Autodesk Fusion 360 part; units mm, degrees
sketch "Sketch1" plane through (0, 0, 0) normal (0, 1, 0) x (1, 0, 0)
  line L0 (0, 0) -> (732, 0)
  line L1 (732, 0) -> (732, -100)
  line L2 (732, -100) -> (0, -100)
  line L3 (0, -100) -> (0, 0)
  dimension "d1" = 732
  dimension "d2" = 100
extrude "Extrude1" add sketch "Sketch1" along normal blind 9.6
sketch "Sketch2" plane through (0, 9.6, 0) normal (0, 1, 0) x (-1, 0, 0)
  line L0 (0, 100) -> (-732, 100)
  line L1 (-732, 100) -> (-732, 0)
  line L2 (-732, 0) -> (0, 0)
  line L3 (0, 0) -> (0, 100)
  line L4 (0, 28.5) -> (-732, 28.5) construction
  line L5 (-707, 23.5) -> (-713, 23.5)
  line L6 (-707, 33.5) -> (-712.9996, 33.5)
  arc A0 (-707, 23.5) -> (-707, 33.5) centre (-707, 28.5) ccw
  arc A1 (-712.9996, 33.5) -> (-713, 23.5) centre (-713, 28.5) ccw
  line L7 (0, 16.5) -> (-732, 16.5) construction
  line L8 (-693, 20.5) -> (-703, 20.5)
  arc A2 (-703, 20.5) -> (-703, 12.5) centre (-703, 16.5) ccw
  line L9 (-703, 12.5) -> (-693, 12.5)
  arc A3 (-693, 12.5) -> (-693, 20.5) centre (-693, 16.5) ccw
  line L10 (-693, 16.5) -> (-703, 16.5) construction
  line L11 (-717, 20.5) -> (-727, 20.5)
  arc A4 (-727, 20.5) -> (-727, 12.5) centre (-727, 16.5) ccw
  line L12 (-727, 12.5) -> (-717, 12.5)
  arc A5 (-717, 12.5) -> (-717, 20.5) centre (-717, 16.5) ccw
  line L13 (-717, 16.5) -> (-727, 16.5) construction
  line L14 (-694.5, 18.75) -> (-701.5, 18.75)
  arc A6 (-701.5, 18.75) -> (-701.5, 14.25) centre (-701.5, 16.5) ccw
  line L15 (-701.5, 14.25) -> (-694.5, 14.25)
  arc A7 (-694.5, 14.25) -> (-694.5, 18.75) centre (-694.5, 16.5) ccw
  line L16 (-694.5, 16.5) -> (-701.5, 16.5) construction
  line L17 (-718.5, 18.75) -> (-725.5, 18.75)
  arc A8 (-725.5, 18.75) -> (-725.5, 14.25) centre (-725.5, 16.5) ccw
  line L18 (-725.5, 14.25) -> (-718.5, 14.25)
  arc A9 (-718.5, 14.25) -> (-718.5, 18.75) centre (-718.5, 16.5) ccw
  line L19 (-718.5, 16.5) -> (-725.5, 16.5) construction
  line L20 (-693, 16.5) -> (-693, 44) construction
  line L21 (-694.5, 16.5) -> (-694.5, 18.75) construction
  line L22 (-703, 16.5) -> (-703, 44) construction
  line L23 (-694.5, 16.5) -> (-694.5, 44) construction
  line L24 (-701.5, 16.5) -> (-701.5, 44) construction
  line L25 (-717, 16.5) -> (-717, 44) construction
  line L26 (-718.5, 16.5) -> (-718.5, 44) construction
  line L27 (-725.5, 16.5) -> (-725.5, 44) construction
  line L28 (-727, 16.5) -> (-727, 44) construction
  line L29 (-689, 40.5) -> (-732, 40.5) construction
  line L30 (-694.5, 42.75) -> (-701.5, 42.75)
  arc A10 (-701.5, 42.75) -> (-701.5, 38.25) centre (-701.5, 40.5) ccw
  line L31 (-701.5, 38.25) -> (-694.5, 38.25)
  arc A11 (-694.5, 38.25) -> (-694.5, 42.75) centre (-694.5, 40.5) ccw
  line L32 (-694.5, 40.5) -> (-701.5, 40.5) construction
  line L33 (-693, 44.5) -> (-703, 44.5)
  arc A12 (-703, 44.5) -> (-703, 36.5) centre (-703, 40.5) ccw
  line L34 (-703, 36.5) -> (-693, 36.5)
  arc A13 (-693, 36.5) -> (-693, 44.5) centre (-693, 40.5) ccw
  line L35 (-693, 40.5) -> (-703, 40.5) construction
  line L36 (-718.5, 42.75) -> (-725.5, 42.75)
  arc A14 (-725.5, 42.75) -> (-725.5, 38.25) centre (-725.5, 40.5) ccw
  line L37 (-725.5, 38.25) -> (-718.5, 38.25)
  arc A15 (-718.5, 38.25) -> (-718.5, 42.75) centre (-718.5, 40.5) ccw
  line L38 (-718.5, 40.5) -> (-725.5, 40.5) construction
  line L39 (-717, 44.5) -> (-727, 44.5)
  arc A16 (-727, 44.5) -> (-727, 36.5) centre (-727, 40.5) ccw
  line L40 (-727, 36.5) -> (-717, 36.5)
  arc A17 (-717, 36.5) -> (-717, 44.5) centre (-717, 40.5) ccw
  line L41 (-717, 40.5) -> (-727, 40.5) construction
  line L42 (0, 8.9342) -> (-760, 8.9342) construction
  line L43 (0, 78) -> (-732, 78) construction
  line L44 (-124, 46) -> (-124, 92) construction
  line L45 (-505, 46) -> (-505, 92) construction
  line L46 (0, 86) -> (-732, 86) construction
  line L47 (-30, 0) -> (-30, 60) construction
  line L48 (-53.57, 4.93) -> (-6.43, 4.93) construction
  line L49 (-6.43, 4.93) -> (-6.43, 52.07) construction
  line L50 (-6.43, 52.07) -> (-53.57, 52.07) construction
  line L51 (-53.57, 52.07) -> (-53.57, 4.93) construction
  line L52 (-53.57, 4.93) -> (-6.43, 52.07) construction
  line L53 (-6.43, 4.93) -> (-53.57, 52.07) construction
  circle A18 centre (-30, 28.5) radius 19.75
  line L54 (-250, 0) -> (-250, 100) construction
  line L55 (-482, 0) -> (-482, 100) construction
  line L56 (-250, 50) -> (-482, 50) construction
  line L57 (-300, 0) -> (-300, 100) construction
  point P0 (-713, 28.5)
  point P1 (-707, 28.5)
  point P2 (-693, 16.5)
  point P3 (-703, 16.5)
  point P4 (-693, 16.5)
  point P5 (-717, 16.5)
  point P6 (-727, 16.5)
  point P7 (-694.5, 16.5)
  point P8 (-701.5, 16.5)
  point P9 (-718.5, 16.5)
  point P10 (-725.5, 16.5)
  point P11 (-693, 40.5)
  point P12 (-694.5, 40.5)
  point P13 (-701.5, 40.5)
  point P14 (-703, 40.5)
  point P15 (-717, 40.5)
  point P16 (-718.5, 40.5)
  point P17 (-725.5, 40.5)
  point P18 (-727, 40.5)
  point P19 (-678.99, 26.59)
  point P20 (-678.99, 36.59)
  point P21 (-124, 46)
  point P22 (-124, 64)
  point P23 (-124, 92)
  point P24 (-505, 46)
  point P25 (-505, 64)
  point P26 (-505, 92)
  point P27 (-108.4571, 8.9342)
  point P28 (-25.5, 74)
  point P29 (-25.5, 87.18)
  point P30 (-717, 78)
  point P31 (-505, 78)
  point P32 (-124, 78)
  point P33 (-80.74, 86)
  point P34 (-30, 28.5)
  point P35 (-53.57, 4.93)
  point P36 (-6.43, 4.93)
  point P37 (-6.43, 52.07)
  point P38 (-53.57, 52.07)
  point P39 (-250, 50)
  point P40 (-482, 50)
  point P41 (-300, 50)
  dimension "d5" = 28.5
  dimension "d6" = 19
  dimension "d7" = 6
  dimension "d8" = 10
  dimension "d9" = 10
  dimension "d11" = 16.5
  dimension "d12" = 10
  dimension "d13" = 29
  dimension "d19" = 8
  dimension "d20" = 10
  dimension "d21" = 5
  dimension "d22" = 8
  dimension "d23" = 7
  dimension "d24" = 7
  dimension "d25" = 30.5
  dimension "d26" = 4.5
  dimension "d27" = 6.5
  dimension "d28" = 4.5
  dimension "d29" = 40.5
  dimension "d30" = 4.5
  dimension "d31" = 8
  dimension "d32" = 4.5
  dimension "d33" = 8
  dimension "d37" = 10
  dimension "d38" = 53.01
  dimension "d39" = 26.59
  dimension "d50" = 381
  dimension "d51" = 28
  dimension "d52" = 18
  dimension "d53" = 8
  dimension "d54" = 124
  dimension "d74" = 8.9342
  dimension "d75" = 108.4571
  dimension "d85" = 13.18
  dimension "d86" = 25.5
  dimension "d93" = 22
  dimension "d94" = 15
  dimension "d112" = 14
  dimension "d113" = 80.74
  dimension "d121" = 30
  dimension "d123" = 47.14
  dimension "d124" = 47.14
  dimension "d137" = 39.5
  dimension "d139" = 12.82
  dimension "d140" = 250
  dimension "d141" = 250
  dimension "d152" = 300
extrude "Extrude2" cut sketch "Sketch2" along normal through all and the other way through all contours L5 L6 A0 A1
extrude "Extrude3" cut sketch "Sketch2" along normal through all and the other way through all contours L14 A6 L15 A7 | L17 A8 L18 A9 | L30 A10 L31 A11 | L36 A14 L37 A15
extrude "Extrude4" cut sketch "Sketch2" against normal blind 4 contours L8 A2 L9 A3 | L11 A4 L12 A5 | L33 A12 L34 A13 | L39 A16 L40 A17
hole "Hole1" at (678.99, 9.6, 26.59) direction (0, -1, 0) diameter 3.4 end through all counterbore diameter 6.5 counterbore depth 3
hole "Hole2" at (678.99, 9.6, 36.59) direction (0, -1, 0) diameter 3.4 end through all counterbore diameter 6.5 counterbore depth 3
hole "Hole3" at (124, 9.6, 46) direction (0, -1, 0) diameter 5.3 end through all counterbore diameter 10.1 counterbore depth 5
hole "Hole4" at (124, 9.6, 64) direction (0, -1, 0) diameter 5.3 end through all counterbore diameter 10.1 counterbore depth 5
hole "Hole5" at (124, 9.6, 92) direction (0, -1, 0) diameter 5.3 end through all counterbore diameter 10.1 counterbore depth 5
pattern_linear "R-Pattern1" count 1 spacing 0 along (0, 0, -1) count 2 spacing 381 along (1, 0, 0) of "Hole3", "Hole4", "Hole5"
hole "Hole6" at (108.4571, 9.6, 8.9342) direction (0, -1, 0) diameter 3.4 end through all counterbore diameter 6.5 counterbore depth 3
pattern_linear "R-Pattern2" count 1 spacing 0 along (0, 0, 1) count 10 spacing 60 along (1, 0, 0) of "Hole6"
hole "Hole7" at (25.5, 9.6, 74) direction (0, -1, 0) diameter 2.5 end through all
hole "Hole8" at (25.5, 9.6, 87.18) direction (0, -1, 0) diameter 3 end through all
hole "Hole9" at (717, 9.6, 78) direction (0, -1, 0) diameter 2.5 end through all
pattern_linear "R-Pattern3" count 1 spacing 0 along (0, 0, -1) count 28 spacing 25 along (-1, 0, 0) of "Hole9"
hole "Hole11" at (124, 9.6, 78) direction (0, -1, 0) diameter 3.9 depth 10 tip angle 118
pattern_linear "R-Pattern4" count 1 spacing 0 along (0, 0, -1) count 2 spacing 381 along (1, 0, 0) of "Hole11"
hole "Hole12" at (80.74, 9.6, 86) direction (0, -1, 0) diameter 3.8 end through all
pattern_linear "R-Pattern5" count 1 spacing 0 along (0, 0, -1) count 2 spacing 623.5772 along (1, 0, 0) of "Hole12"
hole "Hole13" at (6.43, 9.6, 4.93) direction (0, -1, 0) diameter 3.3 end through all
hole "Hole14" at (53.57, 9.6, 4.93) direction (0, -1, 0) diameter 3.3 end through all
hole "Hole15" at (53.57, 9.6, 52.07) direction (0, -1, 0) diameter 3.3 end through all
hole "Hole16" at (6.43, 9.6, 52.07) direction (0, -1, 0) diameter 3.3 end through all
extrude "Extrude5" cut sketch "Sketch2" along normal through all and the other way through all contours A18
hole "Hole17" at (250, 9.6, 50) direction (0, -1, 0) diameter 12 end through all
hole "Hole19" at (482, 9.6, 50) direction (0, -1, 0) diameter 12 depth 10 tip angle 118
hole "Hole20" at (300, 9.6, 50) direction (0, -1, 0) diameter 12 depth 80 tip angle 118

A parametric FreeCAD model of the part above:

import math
import FreeCAD as App
import Part
import Sketcher
from FreeCAD import Vector
Q = App.Units.Quantity


def add_polygon(sketch, points):
    """Adds a closed chain of lines whose ends are joined by coincident constraints."""
    first, n = sketch.GeometryCount, len(points)
    for a, b in zip(points, points[1:] + points[:1]):
        sketch.addGeometry(Part.LineSegment(App.Vector(*a, 0), App.Vector(*b, 0)), False)
    for i in range(n):
        sketch.addConstraint(Sketcher.Constraint("Coincident", first + i, 2, first + (i + 1) % n, 1))

doc = App.newDocument("Part")
body = doc.addObject("PartDesign::Body", "Body")

sketch1 = doc.addObject("Sketcher::SketchObject", "Sketch")
body.addObject(sketch1)
sketch1.AttachmentSupport = (doc.XZ_Plane, [""])
sketch1.MapMode = "FlatFace"
add_polygon(sketch1, [(732, 0), (0, 0), (0, 100), (732, 100)])
sketch1.addConstraint([
    Sketcher.Constraint("Horizontal", 0),
    Sketcher.Constraint("Vertical", 1),
    Sketcher.Constraint("Horizontal", 2),
    Sketcher.Constraint("Vertical", 3),
    Sketcher.Constraint("Coincident", 0, 2, -1, 1),
    Sketcher.Constraint("DistanceX", 0, 2, 0, 1, Q("732 mm")),
    Sketcher.Constraint("DistanceY", 1, 1, 1, 2, Q("100 mm")),
])
pad1 = doc.addObject("PartDesign::Pad", "Pad")
body.addObject(pad1)
pad1.Profile = sketch1
pad1.Length = 9.6
pad1.Reversed = True

sketch2 = doc.addObject("Sketcher::SketchObject", "Sketch001")
body.addObject(sketch2)
sketch2.AttachmentSupport = (doc.XZ_Plane, [""])
sketch2.MapMode = "FlatFace"
sketch2.AttachmentOffset = App.Placement(Vector(0, 0, -9.6), App.Rotation())
sketch2.addGeometry([
    Part.LineSegment(Vector(713, 24, 0), Vector(707, 24, 0)),
    Part.ArcOfCircle(Part.Circle(Vector(707, 28, 0), Vector(0, 0, 1), 5), math.radians(90), math.radians(270)),
    Part.LineSegment(Vector(707, 34, 0), Vector(713, 34, 0)),
    Part.ArcOfCircle(Part.Circle(Vector(713, 28, 0), Vector(0, 0, 1), 5), math.radians(-90), math.radians(90)),
], False)
sketch2.addConstraint([
    Sketcher.Constraint("Tangent", 0, 2, 1, 2),
    Sketcher.Constraint("Tangent", 1, 1, 2, 1),
    Sketcher.Constraint("Tangent", 2, 2, 3, 2),
    Sketcher.Constraint("Tangent", 3, 1, 0, 1),
    Sketcher.Constraint("Horizontal", 0),
    Sketcher.Constraint("Horizontal", 2),
    Sketcher.Constraint("Radius", 1, Q("5 mm")),
    Sketcher.Constraint("DistanceX", 0, 2, 0, 1, Q("6 mm")),
    Sketcher.Constraint("DistanceY", -1, 1, 1, 3, Q("28.5 mm")),
    Sketcher.Constraint("DistanceX", -1, 1, 1, 3, Q("707 mm")),
])
pocket1 = doc.addObject("PartDesign::Pocket", "Pocket")
body.addObject(pocket1)
pocket1.Profile = sketch2
pocket1.Type = "ThroughAll"
pocket1.Midplane = True

sketch3 = doc.addObject("Sketcher::SketchObject", "Sketch002")
body.addObject(sketch3)
sketch3.AttachmentSupport = (doc.XZ_Plane, [""])
sketch3.MapMode = "FlatFace"
sketch3.AttachmentOffset = App.Placement(Vector(0, 0, -9.6), App.Rotation())
sketch3.addGeometry([
    Part.ArcOfCircle(Part.Circle(Vector(694.5, 16.5, 0), Vector(0, 0, 1), 2.2), math.radians(90), math.radians(270)),
    Part.LineSegment(Vector(694.5, 18.8, 0), Vector(701.5, 18.8, 0)),
    Part.ArcOfCircle(Part.Circle(Vector(701.5, 16.5, 0), Vector(0, 0, 1), 2.2), math.radians(-90), math.radians(90)),
    Part.LineSegment(Vector(701.5, 14.2, 0), Vector(694.5, 14.2, 0)),
    Part.ArcOfCircle(Part.Circle(Vector(718.5, 16.5, 0), Vector(0, 0, 1), 2.2), math.radians(90), math.radians(270)),
    Part.LineSegment(Vector(718.5, 18.8, 0), Vector(725.5, 18.8, 0)),
    Part.ArcOfCircle(Part.Circle(Vector(725.5, 16.5, 0), Vector(0, 0, 1), 2.2), math.radians(-90), math.radians(90)),
    Part.LineSegment(Vector(725.5, 14.2, 0), Vector(718.5, 14.2, 0)),
    Part.ArcOfCircle(Part.Circle(Vector(694.5, 40.5, 0), Vector(0, 0, 1), 2.2), math.radians(90), math.radians(270)),
    Part.LineSegment(Vector(694.5, 42.8, 0), Vector(701.5, 42.8, 0)),
    Part.ArcOfCircle(Part.Circle(Vector(701.5, 40.5, 0), Vector(0, 0, 1), 2.2), math.radians(-90), math.radians(90)),
    Part.LineSegment(Vector(701.5, 38.2, 0), Vector(694.5, 38.2, 0)),
    Part.ArcOfCircle(Part.Circle(Vector(718.5, 40.5, 0), Vector(0, 0, 1), 2.2), math.radians(90), math.radians(270)),
    Part.LineSegment(Vector(718.5, 42.8, 0), Vector(725.5, 42.8, 0)),
    Part.ArcOfCircle(Part.Circle(Vector(725.5, 40.5, 0), Vector(0, 0, 1), 2.2), math.radians(-90), math.radians(90)),
    Part.LineSegment(Vector(725.5, 38.2, 0), Vector(718.5, 38.2, 0)),
], False)
sketch3.addConstraint([
    Sketcher.Constraint("Tangent", 0, 1, 1, 1),
    Sketcher.Constraint("Tangent", 1, 2, 2, 2),
    Sketcher.Constraint("Tangent", 2, 1, 3, 1),
    Sketcher.Constraint("Tangent", 3, 2, 0, 2),
    Sketcher.Constraint("Tangent", 4, 1, 5, 1),
    Sketcher.Constraint("Tangent", 5, 2, 6, 2),
    Sketcher.Constraint("Tangent", 6, 1, 7, 1),
    Sketcher.Constraint("Tangent", 7, 2, 4, 2),
    Sketcher.Constraint("Tangent", 8, 1, 9, 1),
    Sketcher.Constraint("Tangent", 9, 2, 10, 2),
    Sketcher.Constraint("Tangent", 10, 1, 11, 1),
    Sketcher.Constraint("Tangent", 11, 2, 8, 2),
    Sketcher.Constraint("Tangent", 12, 1, 13, 1),
    Sketcher.Constraint("Tangent", 13, 2, 14, 2),
    Sketcher.Constraint("Tangent", 14, 1, 15, 1),
    Sketcher.Constraint("Tangent", 15, 2, 12, 2),
    Sketcher.Constraint("Horizontal", 1),
    Sketcher.Constraint("Horizontal", 3),
    Sketcher.Constraint("Horizontal", 5),
    Sketcher.Constraint("Horizontal", 7),
    Sketcher.Constraint("Horizontal", 9),
    Sketcher.Constraint("Horizontal", 11),
    Sketcher.Constraint("Horizontal", 13),
    Sketcher.Constraint("Horizontal", 15),
    Sketcher.Constraint("Equal", 2, 4),
    Sketcher.Constraint("Equal", 6, 8),
    Sketcher.Constraint("Equal", 10, 12),
    Sketcher.Constraint("Horizontal", 2, 3, 4, 3),
    Sketcher.Constraint("Horizontal", 10, 3, 12, 3),
    Sketcher.Constraint("Vertical", 0, 3, 8, 3),
    Sketcher.Constraint("Vertical", 2, 3, 10, 3),
    Sketcher.Constraint("Vertical", 4, 3, 12, 3),
    Sketcher.Constraint("Vertical", 6, 3, 14, 3),
    Sketcher.Constraint("Equal", 3, 5),
    Sketcher.Constraint("DistanceX", 1, 1, 1, 2, Q("7 mm")),
    Sketcher.Constraint("Radius", 0, Q("2.25 mm")),
    Sketcher.Constraint("DistanceY", -1, 1, 0, 3, Q("16.5 mm")),
    Sketcher.Constraint("DistanceY", -1, 1, 8, 3, Q("40.5 mm")),
    Sketcher.Constraint("DistanceX", 2, 3, 4, 3, Q("17 mm")),
    Sketcher.Constraint("DistanceX", -1, 1, 0, 3, Q("694.5 mm")),
])
pocket2 = doc.addObject("PartDesign::Pocket", "Pocket001")
body.addObject(pocket2)
pocket2.Profile = sketch3
pocket2.Type = "ThroughAll"
pocket2.Midplane = True

sketch4 = doc.addObject("Sketcher::SketchObject", "Sketch003")
body.addObject(sketch4)
sketch4.AttachmentSupport = (doc.XZ_Plane, [""])
sketch4.MapMode = "FlatFace"
sketch4.AttachmentOffset = App.Placement(Vector(0, 0, -9.6), App.Rotation())
sketch4.addGeometry([
    Part.ArcOfCircle(Part.Circle(Vector(693, 16.5, 0), Vector(0, 0, 1), 4), math.radians(90), math.radians(270)),
    Part.LineSegment(Vector(693, 20.5, 0), Vector(703, 20.5, 0)),
    Part.ArcOfCircle(Part.Circle(Vector(703, 16.5, 0), Vector(0, 0, 1), 4), math.radians(-90), math.radians(90)),
    Part.LineSegment(Vector(703, 12.5, 0), Vector(693, 12.5, 0)),
    Part.LineSegment(Vector(701.5, 18.8, 0), Vector(694.5, 18.8, 0)),
    Part.ArcOfCircle(Part.Circle(Vector(694.5, 16.5, 0), Vector(0, 0, 1), 2.2), math.radians(90), math.radians(270)),
    Part.LineSegment(Vector(694.5, 14.2, 0), Vector(701.5, 14.2, 0)),
    Part.ArcOfCircle(Part.Circle(Vector(701.5, 16.5, 0), Vector(0, 0, 1), 2.2), math.radians(-90), math.radians(90)),
    Part.ArcOfCircle(Part.Circle(Vector(717, 16.5, 0), Vector(0, 0, 1), 4), math.radians(90), math.radians(270)),
    Part.LineSegment(Vector(717, 20.5, 0), Vector(727, 20.5, 0)),
    Part.ArcOfCircle(Part.Circle(Vector(727, 16.5, 0), Vector(0, 0, 1), 4), math.radians(-90), math.radians(90)),
    Part.LineSegment(Vector(727, 12.5, 0), Vector(717, 12.5, 0)),
    Part.LineSegment(Vector(725.5, 18.8, 0), Vector(718.5, 18.8, 0)),
    Part.ArcOfCircle(Part.Circle(Vector(718.5, 16.5, 0), Vector(0, 0, 1), 2.2), math.radians(90), math.radians(270)),
    Part.LineSegment(Vector(718.5, 14.2, 0), Vector(725.5, 14.2, 0)),
    Part.ArcOfCircle(Part.Circle(Vector(725.5, 16.5, 0), Vector(0, 0, 1), 2.2), math.radians(-90), math.radians(90)),
    Part.ArcOfCircle(Part.Circle(Vector(693, 40.5, 0), Vector(0, 0, 1), 4), math.radians(90), math.radians(270)),
    Part.LineSegment(Vector(693, 44.5, 0), Vector(703, 44.5, 0)),
    Part.ArcOfCircle(Part.Circle(Vector(703, 40.5, 0), Vector(0, 0, 1), 4), math.radians(-90), math.radians(90)),
    Part.LineSegment(Vector(703, 36.5, 0), Vector(693, 36.5, 0)),
    Part.LineSegment(Vector(701.5, 42.8, 0), Vector(694.5, 42.8, 0)),
    Part.ArcOfCircle(Part.Circle(Vector(694.5, 40.5, 0), Vector(0, 0, 1), 2.2), math.radians(90), math.radians(270)),
    Part.LineSegment(Vector(694.5, 38.2, 0), Vector(701.5, 38.2, 0)),
    Part.ArcOfCircle(Part.Circle(Vector(701.5, 40.5, 0), Vector(0, 0, 1), 2.2), math.radians(-90), math.radians(90)),
    Part.ArcOfCircle(Part.Circle(Vector(717, 40.5, 0), Vector(0, 0, 1), 4), math.radians(90), math.radians(270)),
    Part.LineSegment(Vector(717, 44.5, 0), Vector(727, 44.5, 0)),
    Part.ArcOfCircle(Part.Circle(Vector(727, 40.5, 0), Vector(0, 0, 1), 4), math.radians(-90), math.radians(90)),
    Part.LineSegment(Vector(727, 36.5, 0), Vector(717, 36.5, 0)),
    Part.LineSegment(Vector(725.5, 42.8, 0), Vector(718.5, 42.8, 0)),
    Part.ArcOfCircle(Part.Circle(Vector(718.5, 40.5, 0), Vector(0, 0, 1), 2.2), math.radians(90), math.radians(270)),
    Part.LineSegment(Vector(718.5, 38.2, 0), Vector(725.5, 38.2, 0)),
    Part.ArcOfCircle(Part.Circle(Vector(725.5, 40.5, 0), Vector(0, 0, 1), 2.2), math.radians(-90), math.radians(90)),
], False)
sketch4.addConstraint([
    Sketcher.Constraint("Tangent", 0, 1, 1, 1),
    Sketcher.Constraint("Tangent", 1, 2, 2, 2),
    Sketcher.Constraint("Tangent", 2, 1, 3, 1),
    Sketcher.Constraint("Tangent", 3, 2, 0, 2),
    Sketcher.Constraint("Tangent", 4, 2, 5, 1),
    Sketcher.Constraint("Tangent", 5, 2, 6, 1),
    Sketcher.Constraint("Tangent", 6, 2, 7, 1),
    Sketcher.Constraint("Tangent", 7, 2, 4, 1),
    Sketcher.Constraint("Tangent", 8, 1, 9, 1),
    Sketcher.Constraint("Tangent", 9, 2, 10, 2),
    Sketcher.Constraint("Tangent", 10, 1, 11, 1),
    Sketcher.Constraint("Tangent", 11, 2, 8, 2),
    Sketcher.Constraint("Tangent", 12, 2, 13, 1),
    Sketcher.Constraint("Tangent", 13, 2, 14, 1),
    Sketcher.Constraint("Tangent", 14, 2, 15, 1),
    Sketcher.Constraint("Tangent", 15, 2, 12, 1),
    Sketcher.Constraint("Tangent", 16, 1, 17, 1),
    Sketcher.Constraint("Tangent", 17, 2, 18, 2),
    Sketcher.Constraint("Tangent", 18, 1, 19, 1),
    Sketcher.Constraint("Tangent", 19, 2, 16, 2),
    Sketcher.Constraint("Tangent", 20, 2, 21, 1),
    Sketcher.Constraint("Tangent", 21, 2, 22, 1),
    Sketcher.Constraint("Tangent", 22, 2, 23, 1),
    Sketcher.Constraint("Tangent", 23, 2, 20, 1),
    Sketcher.Constraint("Tangent", 24, 1, 25, 1),
    Sketcher.Constraint("Tangent", 25, 2, 26, 2),
    Sketcher.Constraint("Tangent", 26, 1, 27, 1),
    Sketcher.Constraint("Tangent", 27, 2, 24, 2),
    Sketcher.Constraint("Tangent", 28, 2, 29, 1),
    Sketcher.Constraint("Tangent", 29, 2, 30, 1),
    Sketcher.Constraint("Tangent", 30, 2, 31, 1),
    Sketcher.Constraint("Tangent", 31, 2, 28, 1),
    Sketcher.Constraint("Horizontal", 1),
    Sketcher.Constraint("Horizontal", 3),
    Sketcher.Constraint("Horizontal", 4),
    Sketcher.Constraint("Horizontal", 6),
    Sketcher.Constraint("Horizontal", 9),
    Sketcher.Constraint("Horizontal", 11),
    Sketcher.Constraint("Horizontal", 12),
    Sketcher.Constraint("Horizontal", 14),
    Sketcher.Constraint("Horizontal", 17),
    Sketcher.Constraint("Horizontal", 19),
    Sketcher.Constraint("Horizontal", 20),
    Sketcher.Constraint("Horizontal", 22),
    Sketcher.Constraint("Horizontal", 25),
    Sketcher.Constraint("Horizontal", 27),
    Sketcher.Constraint("Horizontal", 28),
    Sketcher.Constraint("Horizontal", 30),
    Sketcher.Constraint("Equal", 2, 8),
    Sketcher.Constraint("Equal", 7, 13),
    Sketcher.Constraint("Equal", 10, 16),
    Sketcher.Constraint("Equal", 15, 21),
    Sketcher.Constraint("Equal", 18, 24),
    Sketcher.Constraint("Equal", 23, 29),
    Sketcher.Constraint("Horizontal", 2, 3, 5, 3),
    Sketcher.Constraint("Horizontal", 7, 3, 8, 3),
    Sketcher.Constraint("Horizontal", 10, 3, 13, 3),
    Sketcher.Constraint("Horizontal", 18, 3, 21, 3),
    Sketcher.Constraint("Horizontal", 23, 3, 24, 3),
    Sketcher.Constraint("Horizontal", 26, 3, 29, 3),
    Sketcher.Constraint("Vertical", 0, 3, 16, 3),
    Sketcher.Constraint("Vertical", 2, 3, 18, 3),
    Sketcher.Constraint("Vertical", 5, 3, 21, 3),
    Sketcher.Constraint("Vertical", 7, 3, 23, 3),
    Sketcher.Constraint("Vertical", 8, 3, 24, 3),
    Sketcher.Constraint("Vertical", 10, 3, 26, 3),
    Sketcher.Constraint("Vertical", 13, 3, 29, 3),
    Sketcher.Constraint("Vertical", 15, 3, 31, 3),
    Sketcher.Constraint("Equal", 3, 9),
    Sketcher.Constraint("Equal", 6, 12),
    Sketcher.Constraint("Radius", 0, Q("4 mm")),
    Sketcher.Constraint("DistanceX", 1, 1, 1, 2, Q("10 mm")),
    Sketcher.Constraint("DistanceX", 4, 2, 4, 1, Q("7 mm")),
    Sketcher.Constraint("Radius", 5, Q("2.25 mm")),
    Sketcher.Constraint("DistanceX", 2, 3, 8, 3, Q("14 mm")),
    Sketcher.Constraint("DistanceY", -1, 1, 0, 3, Q("16.5 mm")),
    Sketcher.Constraint("DistanceY", -1, 1, 16, 3, Q("40.5 mm")),
    Sketcher.Constraint("DistanceX", 7, 3, 10, 3, Q("25.5 mm")),
    Sketcher.Constraint("DistanceX", -1, 1, 0, 3, Q("693 mm")),
    Sketcher.Constraint("DistanceX", 7, 3, 13, 3, Q("17 mm")),
])
pocket3 = doc.addObject("PartDesign::Pocket", "Pocket002")
body.addObject(pocket3)
pocket3.Profile = sketch4
pocket3.Length = 4
pocket3.Reversed = True

sketch5 = doc.addObject("Sketcher::SketchObject", "Sketch004")
body.addObject(sketch5)
sketch5.AttachmentSupport = (doc.XZ_Plane, [""])
sketch5.MapMode = "FlatFace"
sketch5.AttachmentOffset = App.Placement(Vector(0, 0, -9.6), App.Rotation())
sketch5.addGeometry(Part.Circle(Vector(679, 26.6, 0), Vector(0, 0, 1), 1.7), False)
sketch5.addConstraint([
    Sketcher.Constraint("Diameter", 0, Q("3.4 mm")),
    Sketcher.Constraint("DistanceX", -1, 1, 0, 3, Q("678.99 mm")),
    Sketcher.Constraint("DistanceY", -1, 1, 0, 3, Q("26.59 mm")),
])
doc.recompute()
hole = doc.addObject("PartDesign::Hole", "Hole")
body.addObject(hole)
hole.Profile = sketch5
hole.ThreadType = "None"
hole.Diameter = 3.4
hole.DepthType = "ThroughAll"
hole.HoleCutType = "Counterbore"
hole.HoleCutDiameter = 6.5
hole.HoleCutDepth = 3
hole.Reversed = True

sketch6 = doc.addObject("Sketcher::SketchObject", "Sketch005")
body.addObject(sketch6)
sketch6.AttachmentSupport = (doc.XZ_Plane, [""])
sketch6.MapMode = "FlatFace"
sketch6.AttachmentOffset = App.Placement(Vector(0, 0, -9.6), App.Rotation())
sketch6.addGeometry(Part.Circle(Vector(679, 36.6, 0), Vector(0, 0, 1), 1.7), False)
sketch6.addConstraint([
    Sketcher.Constraint("Diameter", 0, Q("3.4 mm")),
    Sketcher.Constraint("DistanceX", -1, 1, 0, 3, Q("678.99 mm")),
    Sketcher.Constraint("DistanceY", -1, 1, 0, 3, Q("36.59 mm")),
])
doc.recompute()
hole2 = doc.addObject("PartDesign::Hole", "Hole001")
body.addObject(hole2)
hole2.Profile = sketch6
hole2.ThreadType = "None"
hole2.Diameter = 3.4
hole2.DepthType = "ThroughAll"
hole2.HoleCutType = "Counterbore"
hole2.HoleCutDiameter = 6.5
hole2.HoleCutDepth = 3
hole2.Reversed = True

sketch7 = doc.addObject("Sketcher::SketchObject", "Sketch006")
body.addObject(sketch7)
sketch7.AttachmentSupport = (doc.XZ_Plane, [""])
sketch7.MapMode = "FlatFace"
sketch7.AttachmentOffset = App.Placement(Vector(0, 0, -9.6), App.Rotation())
sketch7.addGeometry(Part.Circle(Vector(124, 46, 0), Vector(0, 0, 1), 2.6), False)
sketch7.addConstraint([
    Sketcher.Constraint("Diameter", 0, Q("5.3 mm")),
    Sketcher.Constraint("DistanceX", -1, 1, 0, 3, Q("124 mm")),
    Sketcher.Constraint("DistanceY", -1, 1, 0, 3, Q("46 mm")),
])
doc.recompute()
hole3 = doc.addObject("PartDesign::Hole", "Hole002")
body.addObject(hole3)
hole3.Profile = sketch7
hole3.ThreadType = "None"
hole3.Diameter = 5.3
hole3.DepthType = "ThroughAll"
hole3.HoleCutType = "Counterbore"
hole3.HoleCutDiameter = 10.1
hole3.HoleCutDepth = 5
hole3.Reversed = True

sketch8 = doc.addObject("Sketcher::SketchObject", "Sketch007")
body.addObject(sketch8)
sketch8.AttachmentSupport = (doc.XZ_Plane, [""])
sketch8.MapMode = "FlatFace"
sketch8.AttachmentOffset = App.Placement(Vector(0, 0, -9.6), App.Rotation())
sketch8.addGeometry(Part.Circle(Vector(124, 64, 0), Vector(0, 0, 1), 2.6), False)
sketch8.addConstraint([
    Sketcher.Constraint("Diameter", 0, Q("5.3 mm")),
    Sketcher.Constraint("DistanceX", -1, 1, 0, 3, Q("124 mm")),
    Sketcher.Constraint("DistanceY", -1, 1, 0, 3, Q("64 mm")),
])
doc.recompute()
hole4 = doc.addObject("PartDesign::Hole", "Hole003")
body.addObject(hole4)
hole4.Profile = sketch8
hole4.ThreadType = "None"
hole4.Diameter = 5.3
hole4.DepthType = "ThroughAll"
hole4.HoleCutType = "Counterbore"
hole4.HoleCutDiameter = 10.1
hole4.HoleCutDepth = 5
hole4.Reversed = True

sketch9 = doc.addObject("Sketcher::SketchObject", "Sketch008")
body.addObject(sketch9)
sketch9.AttachmentSupport = (doc.XZ_Plane, [""])
sketch9.MapMode = "FlatFace"
sketch9.AttachmentOffset = App.Placement(Vector(0, 0, -9.6), App.Rotation())
sketch9.addGeometry(Part.Circle(Vector(124, 92, 0), Vector(0, 0, 1), 2.6), False)
sketch9.addConstraint([
    Sketcher.Constraint("Diameter", 0, Q("5.3 mm")),
    Sketcher.Constraint("DistanceX", -1, 1, 0, 3, Q("124 mm")),
    Sketcher.Constraint("DistanceY", -1, 1, 0, 3, Q("92 mm")),
])
doc.recompute()
hole5 = doc.addObject("PartDesign::Hole", "Hole004")
body.addObject(hole5)
hole5.Profile = sketch9
hole5.ThreadType = "None"
hole5.Diameter = 5.3
hole5.DepthType = "ThroughAll"
hole5.HoleCutType = "Counterbore"
hole5.HoleCutDiameter = 10.1
hole5.HoleCutDepth = 5
hole5.Reversed = True
doc.recompute()

linearpattern = doc.addObject("PartDesign::LinearPattern", "LinearPattern")
body.addObject(linearpattern)
linearpattern.Originals = [hole3, hole4, hole5]
linearpattern.Direction = (doc.X_Axis, [""])
linearpattern.Mode = "offset"
linearpattern.Offset = 381
linearpattern.Occurrences = 2
body.Tip = linearpattern

sketch10 = doc.addObject("Sketcher::SketchObject", "Sketch009")
body.addObject(sketch10)
sketch10.AttachmentSupport = (doc.XZ_Plane, [""])
sketch10.MapMode = "FlatFace"
sketch10.AttachmentOffset = App.Placement(Vector(0, 0, -9.6), App.Rotation())
sketch10.addGeometry(Part.Circle(Vector(108.5, 8.9, 0), Vector(0, 0, 1), 1.7), False)
sketch10.addConstraint([
    Sketcher.Constraint("Diameter", 0, Q("3.4 mm")),
    Sketcher.Constraint("DistanceX", -1, 1, 0, 3, Q("108.457 mm")),
    Sketcher.Constraint("DistanceY", -1, 1, 0, 3, Q("8.9342 mm")),
])
doc.recompute()
hole6 = doc.addObject("PartDesign::Hole", "Hole005")
body.addObject(hole6)
hole6.Profile = sketch10
hole6.ThreadType = "None"
hole6.Diameter = 3.4
hole6.DepthType = "ThroughAll"
hole6.HoleCutType = "Counterbore"
hole6.HoleCutDiameter = 6.5
hole6.HoleCutDepth = 3
hole6.Reversed = True
doc.recompute()

linearpattern2 = doc.addObject("PartDesign::LinearPattern", "LinearPattern001")
body.addObject(linearpattern2)
linearpattern2.Originals = [hole6]
linearpattern2.Direction = (doc.X_Axis, [""])
linearpattern2.Mode = "offset"
linearpattern2.Offset = 60
linearpattern2.Occurrences = 10
body.Tip = linearpattern2

sketch11 = doc.addObject("Sketcher::SketchObject", "Sketch010")
body.addObject(sketch11)
sketch11.AttachmentSupport = (doc.XZ_Plane, [""])
sketch11.MapMode = "FlatFace"
sketch11.AttachmentOffset = App.Placement(Vector(0, 0, -9.6), App.Rotation())
sketch11.addGeometry(Part.Circle(Vector(25.5, 74, 0), Vector(0, 0, 1), 1.2), False)
sketch11.addConstraint([
    Sketcher.Constraint("Diameter", 0, Q("2.5 mm")),
    Sketcher.Constraint("DistanceY", -1, 1, 0, 3, Q("74 mm")),
    Sketcher.Constraint("DistanceX", -1, 1, 0, 3, Q("25.5 mm")),
])
doc.recompute()
hole7 = doc.addObject("PartDesign::Hole", "Hole006")
body.addObject(hole7)
hole7.Profile = sketch11
hole7.ThreadType = "None"
hole7.Diameter = 2.5
hole7.DepthType = "ThroughAll"
hole7.Reversed = True

sketch12 = doc.addObject("Sketcher::SketchObject", "Sketch011")
body.addObject(sketch12)
sketch12.AttachmentSupport = (doc.XZ_Plane, [""])
sketch12.MapMode = "FlatFace"
sketch12.AttachmentOffset = App.Placement(Vector(0, 0, -9.6), App.Rotation())
sketch12.addGeometry(Part.Circle(Vector(25.5, 87.2, 0), Vector(0, 0, 1), 1.5), False)
sketch12.addConstraint([
    Sketcher.Constraint("Diameter", 0, Q("3 mm")),
    Sketcher.Constraint("DistanceX", -1, 1, 0, 3, Q("25.5 mm")),
    Sketcher.Constraint("DistanceY", -1, 1, 0, 3, Q("87.18 mm")),
])
doc.recompute()
hole8 = doc.addObject("PartDesign::Hole", "Hole007")
body.addObject(hole8)
hole8.Profile = sketch12
hole8.ThreadType = "None"
hole8.Diameter = 3
hole8.DepthType = "ThroughAll"
hole8.Reversed = True

sketch13 = doc.addObject("Sketcher::SketchObject", "Sketch012")
body.addObject(sketch13)
sketch13.AttachmentSupport = (doc.XZ_Plane, [""])
sketch13.MapMode = "FlatFace"
sketch13.AttachmentOffset = App.Placement(Vector(0, 0, -9.6), App.Rotation())
sketch13.addGeometry(Part.Circle(Vector(717, 78, 0), Vector(0, 0, 1), 1.2), False)
sketch13.addConstraint([
    Sketcher.Constraint("Diameter", 0, Q("2.5 mm")),
    Sketcher.Constraint("DistanceX", -1, 1, 0, 3, Q("717 mm")),
    Sketcher.Constraint("DistanceY", -1, 1, 0, 3, Q("78 mm")),
])
doc.recompute()
hole9 = doc.addObject("PartDesign::Hole", "Hole008")
body.addObject(hole9)
hole9.Profile = sketch13
hole9.ThreadType = "None"
hole9.Diameter = 2.5
hole9.DepthType = "ThroughAll"
hole9.Reversed = True
doc.recompute()

linearpattern3 = doc.addObject("PartDesign::LinearPattern", "LinearPattern002")
body.addObject(linearpattern3)
linearpattern3.Originals = [hole9]
linearpattern3.Direction = (doc.X_Axis, [""])
linearpattern3.Mode = "offset"
linearpattern3.Offset = 25
linearpattern3.Occurrences = 28
linearpattern3.Reversed = True
body.Tip = linearpattern3

sketch14 = doc.addObject("Sketcher::SketchObject", "Sketch013")
body.addObject(sketch14)
sketch14.AttachmentSupport = (doc.XZ_Plane, [""])
sketch14.MapMode = "FlatFace"
sketch14.AttachmentOffset = App.Placement(Vector(0, 0, -9.6), App.Rotation())
sketch14.addGeometry(Part.Circle(Vector(124, 78, 0), Vector(0, 0, 1), 1.9), False)
sketch14.addConstraint([
    Sketcher.Constraint("Diameter", 0, Q("3.9 mm")),
    Sketcher.Constraint("DistanceX", -1, 1, 0, 3, Q("124 mm")),
    Sketcher.Constraint("DistanceY", -1, 1, 0, 3, Q("78 mm")),
])
doc.recompute()
hole10 = doc.addObject("PartDesign::Hole", "Hole009")
body.addObject(hole10)
hole10.Profile = sketch14
hole10.ThreadType = "None"
hole10.Diameter = 3.9
hole10.DepthType = "Dimension"
hole10.Depth = 10
hole10.DrillPoint = "Angled"
hole10.DrillPointAngle = 118
hole10.Reversed = True
doc.recompute()

linearpattern4 = doc.addObject("PartDesign::LinearPattern", "LinearPattern003")
body.addObject(linearpattern4)
linearpattern4.Originals = [hole10]
linearpattern4.Direction = (doc.X_Axis, [""])
linearpattern4.Mode = "offset"
linearpattern4.Offset = 381
linearpattern4.Occurrences = 2
body.Tip = linearpattern4

sketch15 = doc.addObject("Sketcher::SketchObject", "Sketch014")
body.addObject(sketch15)
sketch15.AttachmentSupport = (doc.XZ_Plane, [""])
sketch15.MapMode = "FlatFace"
sketch15.AttachmentOffset = App.Placement(Vector(0, 0, -9.6), App.Rotation())
sketch15.addGeometry(Part.Circle(Vector(80.7, 86, 0), Vector(0, 0, 1), 1.9), False)
sketch15.addConstraint([
    Sketcher.Constraint("Diameter", 0, Q("3.8 mm")),
    Sketcher.Constraint("DistanceY", -1, 1, 0, 3, Q("86 mm")),
    Sketcher.Constraint("DistanceX", -1, 1, 0, 3, Q("80.74 mm")),
])
doc.recompute()
hole11 = doc.addObject("PartDesign::Hole", "Hole010")
body.addObject(hole11)
hole11.Profile = sketch15
hole11.ThreadType = "None"
hole11.Diameter = 3.8
hole11.DepthType = "ThroughAll"
hole11.Reversed = True
doc.recompute()

linearpattern5 = doc.addObject("PartDesign::LinearPattern", "LinearPattern004")
body.addObject(linearpattern5)
linearpattern5.Originals = [hole11]
linearpattern5.Direction = (doc.X_Axis, [""])
linearpattern5.Mode = "offset"
linearpattern5.Offset = 623.5772
linearpattern5.Occurrences = 2
body.Tip = linearpattern5

sketch16 = doc.addObject("Sketcher::SketchObject", "Sketch015")
body.addObject(sketch16)
sketch16.AttachmentSupport = (doc.XZ_Plane, [""])
sketch16.MapMode = "FlatFace"
sketch16.AttachmentOffset = App.Placement(Vector(0, 0, -9.6), App.Rotation())
sketch16.addGeometry(Part.Circle(Vector(6.4, 4.9, 0), Vector(0, 0, 1), 1.6), False)
sketch16.addConstraint([
    Sketcher.Constraint("Diameter", 0, Q("3.3 mm")),
    Sketcher.Constraint("DistanceX", -1, 1, 0, 3, Q("6.43 mm")),
    Sketcher.Constraint("DistanceY", -1, 1, 0, 3, Q("4.93 mm")),
])
doc.recompute()
hole12 = doc.addObject("PartDesign::Hole", "Hole011")
body.addObject(hole12)
hole12.Profile = sketch16
hole12.ThreadType = "None"
hole12.Diameter = 3.3
hole12.DepthType = "ThroughAll"
hole12.Reversed = True

sketch17 = doc.addObject("Sketcher::SketchObject", "Sketch016")
body.addObject(sketch17)
sketch17.AttachmentSupport = (doc.XZ_Plane, [""])
sketch17.MapMode = "FlatFace"
sketch17.AttachmentOffset = App.Placement(Vector(0, 0, -9.6), App.Rotation())
sketch17.addGeometry(Part.Circle(Vector(53.6, 4.9, 0), Vector(0, 0, 1), 1.6), False)
sketch17.addConstraint([
    Sketcher.Constraint("Diameter", 0, Q("3.3 mm")),
    Sketcher.Constraint("DistanceX", -1, 1, 0, 3, Q("53.57 mm")),
    Sketcher.Constraint("DistanceY", -1, 1, 0, 3, Q("4.93 mm")),
])
doc.recompute()
hole13 = doc.addObject("PartDesign::Hole", "Hole012")
body.addObject(hole13)
hole13.Profile = sketch17
hole13.ThreadType = "None"
hole13.Diameter = 3.3
hole13.DepthType = "ThroughAll"
hole13.Reversed = True

sketch18 = doc.addObject("Sketcher::SketchObject", "Sketch017")
body.addObject(sketch18)
sketch18.AttachmentSupport = (doc.XZ_Plane, [""])
sketch18.MapMode = "FlatFace"
sketch18.AttachmentOffset = App.Placement(Vector(0, 0, -9.6), App.Rotation())
sketch18.addGeometry(Part.Circle(Vector(53.6, 52.1, 0), Vector(0, 0, 1), 1.6), False)
sketch18.addConstraint([
    Sketcher.Constraint("Diameter", 0, Q("3.3 mm")),
    Sketcher.Constraint("DistanceX", -1, 1, 0, 3, Q("53.57 mm")),
    Sketcher.Constraint("DistanceY", -1, 1, 0, 3, Q("52.07 mm")),
])
doc.recompute()
hole14 = doc.addObject("PartDesign::Hole", "Hole013")
body.addObject(hole14)
hole14.Profile = sketch18
hole14.ThreadType = "None"
hole14.Diameter = 3.3
hole14.DepthType = "ThroughAll"
hole14.Reversed = True

sketch19 = doc.addObject("Sketcher::SketchObject", "Sketch018")
body.addObject(sketch19)
sketch19.AttachmentSupport = (doc.XZ_Plane, [""])
sketch19.MapMode = "FlatFace"
sketch19.AttachmentOffset = App.Placement(Vector(0, 0, -9.6), App.Rotation())
sketch19.addGeometry(Part.Circle(Vector(6.4, 52.1, 0), Vector(0, 0, 1), 1.6), False)
sketch19.addConstraint([
    Sketcher.Constraint("Diameter", 0, Q("3.3 mm")),
    Sketcher.Constraint("DistanceX", -1, 1, 0, 3, Q("6.43 mm")),
    Sketcher.Constraint("DistanceY", -1, 1, 0, 3, Q("52.07 mm")),
])
doc.recompute()
hole15 = doc.addObject("PartDesign::Hole", "Hole014")
body.addObject(hole15)
hole15.Profile = sketch19
hole15.ThreadType = "None"
hole15.Diameter = 3.3
hole15.DepthType = "ThroughAll"
hole15.Reversed = True

sketch20 = doc.addObject("Sketcher::SketchObject", "Sketch019")
body.addObject(sketch20)
sketch20.AttachmentSupport = (doc.XZ_Plane, [""])
sketch20.MapMode = "FlatFace"
sketch20.AttachmentOffset = App.Placement(Vector(0, 0, -9.6), App.Rotation())
sketch20.addGeometry(Part.Circle(Vector(30, 28, 0), Vector(0, 0, 1), 20), False)
sketch20.addConstraint([
    Sketcher.Constraint("Diameter", 0, Q("39.5 mm")),
    Sketcher.Constraint("DistanceX", -1, 1, 0, 3, Q("30 mm")),
    Sketcher.Constraint("DistanceY", -1, 1, 0, 3, Q("28.5 mm")),
])
pocket4 = doc.addObject("PartDesign::Pocket", "Pocket003")
body.addObject(pocket4)
pocket4.Profile = sketch20
pocket4.Type = "ThroughAll"
pocket4.Midplane = True

sketch21 = doc.addObject("Sketcher::SketchObject", "Sketch020")
body.addObject(sketch21)
sketch21.AttachmentSupport = (doc.XZ_Plane, [""])
sketch21.MapMode = "FlatFace"
sketch21.AttachmentOffset = App.Placement(Vector(0, 0, -9.6), App.Rotation())
sketch21.addGeometry(Part.Circle(Vector(250, 50, 0), Vector(0, 0, 1), 6), False)
sketch21.addConstraint([
    Sketcher.Constraint("Diameter", 0, Q("12 mm")),
    Sketcher.Constraint("DistanceX", -1, 1, 0, 3, Q("250 mm")),
    Sketcher.Constraint("DistanceY", -1, 1, 0, 3, Q("50 mm")),
])
doc.recompute()
hole16 = doc.addObject("PartDesign::Hole", "Hole015")
body.addObject(hole16)
hole16.Profile = sketch21
hole16.ThreadType = "None"
hole16.Diameter = 12
hole16.DepthType = "ThroughAll"
hole16.Reversed = True

sketch22 = doc.addObject("Sketcher::SketchObject", "Sketch021")
body.addObject(sketch22)
sketch22.AttachmentSupport = (doc.XZ_Plane, [""])
sketch22.MapMode = "FlatFace"
sketch22.AttachmentOffset = App.Placement(Vector(0, 0, -9.6), App.Rotation())
sketch22.addGeometry(Part.Circle(Vector(482, 50, 0), Vector(0, 0, 1), 6), False)
sketch22.addConstraint([
    Sketcher.Constraint("Diameter", 0, Q("12 mm")),
    Sketcher.Constraint("DistanceX", -1, 1, 0, 3, Q("482 mm")),
    Sketcher.Constraint("DistanceY", -1, 1, 0, 3, Q("50 mm")),
])
doc.recompute()
hole17 = doc.addObject("PartDesign::Hole", "Hole016")
body.addObject(hole17)
hole17.Profile = sketch22
hole17.ThreadType = "None"
hole17.Diameter = 12
hole17.DepthType = "Dimension"
hole17.Depth = 10
hole17.DrillPoint = "Angled"
hole17.DrillPointAngle = 118
hole17.Reversed = True

sketch23 = doc.addObject("Sketcher::SketchObject", "Sketch022")
body.addObject(sketch23)
sketch23.AttachmentSupport = (doc.XZ_Plane, [""])
sketch23.MapMode = "FlatFace"
sketch23.AttachmentOffset = App.Placement(Vector(0, 0, -9.6), App.Rotation())
sketch23.addGeometry(Part.Circle(Vector(300, 50, 0), Vector(0, 0, 1), 6), False)
sketch23.addConstraint([
    Sketcher.Constraint("Diameter", 0, Q("12 mm")),
    Sketcher.Constraint("DistanceX", -1, 1, 0, 3, Q("300 mm")),
    Sketcher.Constraint("DistanceY", -1, 1, 0, 3, Q("50 mm")),
])
doc.recompute()
hole18 = doc.addObject("PartDesign::Hole", "Hole017")
body.addObject(hole18)
hole18.Profile = sketch23
hole18.ThreadType = "None"
hole18.Diameter = 12
hole18.DepthType = "Dimension"
hole18.Depth = 80
hole18.DrillPoint = "Angled"
hole18.DrillPointAngle = 118
hole18.Reversed = True

doc.recompute()
